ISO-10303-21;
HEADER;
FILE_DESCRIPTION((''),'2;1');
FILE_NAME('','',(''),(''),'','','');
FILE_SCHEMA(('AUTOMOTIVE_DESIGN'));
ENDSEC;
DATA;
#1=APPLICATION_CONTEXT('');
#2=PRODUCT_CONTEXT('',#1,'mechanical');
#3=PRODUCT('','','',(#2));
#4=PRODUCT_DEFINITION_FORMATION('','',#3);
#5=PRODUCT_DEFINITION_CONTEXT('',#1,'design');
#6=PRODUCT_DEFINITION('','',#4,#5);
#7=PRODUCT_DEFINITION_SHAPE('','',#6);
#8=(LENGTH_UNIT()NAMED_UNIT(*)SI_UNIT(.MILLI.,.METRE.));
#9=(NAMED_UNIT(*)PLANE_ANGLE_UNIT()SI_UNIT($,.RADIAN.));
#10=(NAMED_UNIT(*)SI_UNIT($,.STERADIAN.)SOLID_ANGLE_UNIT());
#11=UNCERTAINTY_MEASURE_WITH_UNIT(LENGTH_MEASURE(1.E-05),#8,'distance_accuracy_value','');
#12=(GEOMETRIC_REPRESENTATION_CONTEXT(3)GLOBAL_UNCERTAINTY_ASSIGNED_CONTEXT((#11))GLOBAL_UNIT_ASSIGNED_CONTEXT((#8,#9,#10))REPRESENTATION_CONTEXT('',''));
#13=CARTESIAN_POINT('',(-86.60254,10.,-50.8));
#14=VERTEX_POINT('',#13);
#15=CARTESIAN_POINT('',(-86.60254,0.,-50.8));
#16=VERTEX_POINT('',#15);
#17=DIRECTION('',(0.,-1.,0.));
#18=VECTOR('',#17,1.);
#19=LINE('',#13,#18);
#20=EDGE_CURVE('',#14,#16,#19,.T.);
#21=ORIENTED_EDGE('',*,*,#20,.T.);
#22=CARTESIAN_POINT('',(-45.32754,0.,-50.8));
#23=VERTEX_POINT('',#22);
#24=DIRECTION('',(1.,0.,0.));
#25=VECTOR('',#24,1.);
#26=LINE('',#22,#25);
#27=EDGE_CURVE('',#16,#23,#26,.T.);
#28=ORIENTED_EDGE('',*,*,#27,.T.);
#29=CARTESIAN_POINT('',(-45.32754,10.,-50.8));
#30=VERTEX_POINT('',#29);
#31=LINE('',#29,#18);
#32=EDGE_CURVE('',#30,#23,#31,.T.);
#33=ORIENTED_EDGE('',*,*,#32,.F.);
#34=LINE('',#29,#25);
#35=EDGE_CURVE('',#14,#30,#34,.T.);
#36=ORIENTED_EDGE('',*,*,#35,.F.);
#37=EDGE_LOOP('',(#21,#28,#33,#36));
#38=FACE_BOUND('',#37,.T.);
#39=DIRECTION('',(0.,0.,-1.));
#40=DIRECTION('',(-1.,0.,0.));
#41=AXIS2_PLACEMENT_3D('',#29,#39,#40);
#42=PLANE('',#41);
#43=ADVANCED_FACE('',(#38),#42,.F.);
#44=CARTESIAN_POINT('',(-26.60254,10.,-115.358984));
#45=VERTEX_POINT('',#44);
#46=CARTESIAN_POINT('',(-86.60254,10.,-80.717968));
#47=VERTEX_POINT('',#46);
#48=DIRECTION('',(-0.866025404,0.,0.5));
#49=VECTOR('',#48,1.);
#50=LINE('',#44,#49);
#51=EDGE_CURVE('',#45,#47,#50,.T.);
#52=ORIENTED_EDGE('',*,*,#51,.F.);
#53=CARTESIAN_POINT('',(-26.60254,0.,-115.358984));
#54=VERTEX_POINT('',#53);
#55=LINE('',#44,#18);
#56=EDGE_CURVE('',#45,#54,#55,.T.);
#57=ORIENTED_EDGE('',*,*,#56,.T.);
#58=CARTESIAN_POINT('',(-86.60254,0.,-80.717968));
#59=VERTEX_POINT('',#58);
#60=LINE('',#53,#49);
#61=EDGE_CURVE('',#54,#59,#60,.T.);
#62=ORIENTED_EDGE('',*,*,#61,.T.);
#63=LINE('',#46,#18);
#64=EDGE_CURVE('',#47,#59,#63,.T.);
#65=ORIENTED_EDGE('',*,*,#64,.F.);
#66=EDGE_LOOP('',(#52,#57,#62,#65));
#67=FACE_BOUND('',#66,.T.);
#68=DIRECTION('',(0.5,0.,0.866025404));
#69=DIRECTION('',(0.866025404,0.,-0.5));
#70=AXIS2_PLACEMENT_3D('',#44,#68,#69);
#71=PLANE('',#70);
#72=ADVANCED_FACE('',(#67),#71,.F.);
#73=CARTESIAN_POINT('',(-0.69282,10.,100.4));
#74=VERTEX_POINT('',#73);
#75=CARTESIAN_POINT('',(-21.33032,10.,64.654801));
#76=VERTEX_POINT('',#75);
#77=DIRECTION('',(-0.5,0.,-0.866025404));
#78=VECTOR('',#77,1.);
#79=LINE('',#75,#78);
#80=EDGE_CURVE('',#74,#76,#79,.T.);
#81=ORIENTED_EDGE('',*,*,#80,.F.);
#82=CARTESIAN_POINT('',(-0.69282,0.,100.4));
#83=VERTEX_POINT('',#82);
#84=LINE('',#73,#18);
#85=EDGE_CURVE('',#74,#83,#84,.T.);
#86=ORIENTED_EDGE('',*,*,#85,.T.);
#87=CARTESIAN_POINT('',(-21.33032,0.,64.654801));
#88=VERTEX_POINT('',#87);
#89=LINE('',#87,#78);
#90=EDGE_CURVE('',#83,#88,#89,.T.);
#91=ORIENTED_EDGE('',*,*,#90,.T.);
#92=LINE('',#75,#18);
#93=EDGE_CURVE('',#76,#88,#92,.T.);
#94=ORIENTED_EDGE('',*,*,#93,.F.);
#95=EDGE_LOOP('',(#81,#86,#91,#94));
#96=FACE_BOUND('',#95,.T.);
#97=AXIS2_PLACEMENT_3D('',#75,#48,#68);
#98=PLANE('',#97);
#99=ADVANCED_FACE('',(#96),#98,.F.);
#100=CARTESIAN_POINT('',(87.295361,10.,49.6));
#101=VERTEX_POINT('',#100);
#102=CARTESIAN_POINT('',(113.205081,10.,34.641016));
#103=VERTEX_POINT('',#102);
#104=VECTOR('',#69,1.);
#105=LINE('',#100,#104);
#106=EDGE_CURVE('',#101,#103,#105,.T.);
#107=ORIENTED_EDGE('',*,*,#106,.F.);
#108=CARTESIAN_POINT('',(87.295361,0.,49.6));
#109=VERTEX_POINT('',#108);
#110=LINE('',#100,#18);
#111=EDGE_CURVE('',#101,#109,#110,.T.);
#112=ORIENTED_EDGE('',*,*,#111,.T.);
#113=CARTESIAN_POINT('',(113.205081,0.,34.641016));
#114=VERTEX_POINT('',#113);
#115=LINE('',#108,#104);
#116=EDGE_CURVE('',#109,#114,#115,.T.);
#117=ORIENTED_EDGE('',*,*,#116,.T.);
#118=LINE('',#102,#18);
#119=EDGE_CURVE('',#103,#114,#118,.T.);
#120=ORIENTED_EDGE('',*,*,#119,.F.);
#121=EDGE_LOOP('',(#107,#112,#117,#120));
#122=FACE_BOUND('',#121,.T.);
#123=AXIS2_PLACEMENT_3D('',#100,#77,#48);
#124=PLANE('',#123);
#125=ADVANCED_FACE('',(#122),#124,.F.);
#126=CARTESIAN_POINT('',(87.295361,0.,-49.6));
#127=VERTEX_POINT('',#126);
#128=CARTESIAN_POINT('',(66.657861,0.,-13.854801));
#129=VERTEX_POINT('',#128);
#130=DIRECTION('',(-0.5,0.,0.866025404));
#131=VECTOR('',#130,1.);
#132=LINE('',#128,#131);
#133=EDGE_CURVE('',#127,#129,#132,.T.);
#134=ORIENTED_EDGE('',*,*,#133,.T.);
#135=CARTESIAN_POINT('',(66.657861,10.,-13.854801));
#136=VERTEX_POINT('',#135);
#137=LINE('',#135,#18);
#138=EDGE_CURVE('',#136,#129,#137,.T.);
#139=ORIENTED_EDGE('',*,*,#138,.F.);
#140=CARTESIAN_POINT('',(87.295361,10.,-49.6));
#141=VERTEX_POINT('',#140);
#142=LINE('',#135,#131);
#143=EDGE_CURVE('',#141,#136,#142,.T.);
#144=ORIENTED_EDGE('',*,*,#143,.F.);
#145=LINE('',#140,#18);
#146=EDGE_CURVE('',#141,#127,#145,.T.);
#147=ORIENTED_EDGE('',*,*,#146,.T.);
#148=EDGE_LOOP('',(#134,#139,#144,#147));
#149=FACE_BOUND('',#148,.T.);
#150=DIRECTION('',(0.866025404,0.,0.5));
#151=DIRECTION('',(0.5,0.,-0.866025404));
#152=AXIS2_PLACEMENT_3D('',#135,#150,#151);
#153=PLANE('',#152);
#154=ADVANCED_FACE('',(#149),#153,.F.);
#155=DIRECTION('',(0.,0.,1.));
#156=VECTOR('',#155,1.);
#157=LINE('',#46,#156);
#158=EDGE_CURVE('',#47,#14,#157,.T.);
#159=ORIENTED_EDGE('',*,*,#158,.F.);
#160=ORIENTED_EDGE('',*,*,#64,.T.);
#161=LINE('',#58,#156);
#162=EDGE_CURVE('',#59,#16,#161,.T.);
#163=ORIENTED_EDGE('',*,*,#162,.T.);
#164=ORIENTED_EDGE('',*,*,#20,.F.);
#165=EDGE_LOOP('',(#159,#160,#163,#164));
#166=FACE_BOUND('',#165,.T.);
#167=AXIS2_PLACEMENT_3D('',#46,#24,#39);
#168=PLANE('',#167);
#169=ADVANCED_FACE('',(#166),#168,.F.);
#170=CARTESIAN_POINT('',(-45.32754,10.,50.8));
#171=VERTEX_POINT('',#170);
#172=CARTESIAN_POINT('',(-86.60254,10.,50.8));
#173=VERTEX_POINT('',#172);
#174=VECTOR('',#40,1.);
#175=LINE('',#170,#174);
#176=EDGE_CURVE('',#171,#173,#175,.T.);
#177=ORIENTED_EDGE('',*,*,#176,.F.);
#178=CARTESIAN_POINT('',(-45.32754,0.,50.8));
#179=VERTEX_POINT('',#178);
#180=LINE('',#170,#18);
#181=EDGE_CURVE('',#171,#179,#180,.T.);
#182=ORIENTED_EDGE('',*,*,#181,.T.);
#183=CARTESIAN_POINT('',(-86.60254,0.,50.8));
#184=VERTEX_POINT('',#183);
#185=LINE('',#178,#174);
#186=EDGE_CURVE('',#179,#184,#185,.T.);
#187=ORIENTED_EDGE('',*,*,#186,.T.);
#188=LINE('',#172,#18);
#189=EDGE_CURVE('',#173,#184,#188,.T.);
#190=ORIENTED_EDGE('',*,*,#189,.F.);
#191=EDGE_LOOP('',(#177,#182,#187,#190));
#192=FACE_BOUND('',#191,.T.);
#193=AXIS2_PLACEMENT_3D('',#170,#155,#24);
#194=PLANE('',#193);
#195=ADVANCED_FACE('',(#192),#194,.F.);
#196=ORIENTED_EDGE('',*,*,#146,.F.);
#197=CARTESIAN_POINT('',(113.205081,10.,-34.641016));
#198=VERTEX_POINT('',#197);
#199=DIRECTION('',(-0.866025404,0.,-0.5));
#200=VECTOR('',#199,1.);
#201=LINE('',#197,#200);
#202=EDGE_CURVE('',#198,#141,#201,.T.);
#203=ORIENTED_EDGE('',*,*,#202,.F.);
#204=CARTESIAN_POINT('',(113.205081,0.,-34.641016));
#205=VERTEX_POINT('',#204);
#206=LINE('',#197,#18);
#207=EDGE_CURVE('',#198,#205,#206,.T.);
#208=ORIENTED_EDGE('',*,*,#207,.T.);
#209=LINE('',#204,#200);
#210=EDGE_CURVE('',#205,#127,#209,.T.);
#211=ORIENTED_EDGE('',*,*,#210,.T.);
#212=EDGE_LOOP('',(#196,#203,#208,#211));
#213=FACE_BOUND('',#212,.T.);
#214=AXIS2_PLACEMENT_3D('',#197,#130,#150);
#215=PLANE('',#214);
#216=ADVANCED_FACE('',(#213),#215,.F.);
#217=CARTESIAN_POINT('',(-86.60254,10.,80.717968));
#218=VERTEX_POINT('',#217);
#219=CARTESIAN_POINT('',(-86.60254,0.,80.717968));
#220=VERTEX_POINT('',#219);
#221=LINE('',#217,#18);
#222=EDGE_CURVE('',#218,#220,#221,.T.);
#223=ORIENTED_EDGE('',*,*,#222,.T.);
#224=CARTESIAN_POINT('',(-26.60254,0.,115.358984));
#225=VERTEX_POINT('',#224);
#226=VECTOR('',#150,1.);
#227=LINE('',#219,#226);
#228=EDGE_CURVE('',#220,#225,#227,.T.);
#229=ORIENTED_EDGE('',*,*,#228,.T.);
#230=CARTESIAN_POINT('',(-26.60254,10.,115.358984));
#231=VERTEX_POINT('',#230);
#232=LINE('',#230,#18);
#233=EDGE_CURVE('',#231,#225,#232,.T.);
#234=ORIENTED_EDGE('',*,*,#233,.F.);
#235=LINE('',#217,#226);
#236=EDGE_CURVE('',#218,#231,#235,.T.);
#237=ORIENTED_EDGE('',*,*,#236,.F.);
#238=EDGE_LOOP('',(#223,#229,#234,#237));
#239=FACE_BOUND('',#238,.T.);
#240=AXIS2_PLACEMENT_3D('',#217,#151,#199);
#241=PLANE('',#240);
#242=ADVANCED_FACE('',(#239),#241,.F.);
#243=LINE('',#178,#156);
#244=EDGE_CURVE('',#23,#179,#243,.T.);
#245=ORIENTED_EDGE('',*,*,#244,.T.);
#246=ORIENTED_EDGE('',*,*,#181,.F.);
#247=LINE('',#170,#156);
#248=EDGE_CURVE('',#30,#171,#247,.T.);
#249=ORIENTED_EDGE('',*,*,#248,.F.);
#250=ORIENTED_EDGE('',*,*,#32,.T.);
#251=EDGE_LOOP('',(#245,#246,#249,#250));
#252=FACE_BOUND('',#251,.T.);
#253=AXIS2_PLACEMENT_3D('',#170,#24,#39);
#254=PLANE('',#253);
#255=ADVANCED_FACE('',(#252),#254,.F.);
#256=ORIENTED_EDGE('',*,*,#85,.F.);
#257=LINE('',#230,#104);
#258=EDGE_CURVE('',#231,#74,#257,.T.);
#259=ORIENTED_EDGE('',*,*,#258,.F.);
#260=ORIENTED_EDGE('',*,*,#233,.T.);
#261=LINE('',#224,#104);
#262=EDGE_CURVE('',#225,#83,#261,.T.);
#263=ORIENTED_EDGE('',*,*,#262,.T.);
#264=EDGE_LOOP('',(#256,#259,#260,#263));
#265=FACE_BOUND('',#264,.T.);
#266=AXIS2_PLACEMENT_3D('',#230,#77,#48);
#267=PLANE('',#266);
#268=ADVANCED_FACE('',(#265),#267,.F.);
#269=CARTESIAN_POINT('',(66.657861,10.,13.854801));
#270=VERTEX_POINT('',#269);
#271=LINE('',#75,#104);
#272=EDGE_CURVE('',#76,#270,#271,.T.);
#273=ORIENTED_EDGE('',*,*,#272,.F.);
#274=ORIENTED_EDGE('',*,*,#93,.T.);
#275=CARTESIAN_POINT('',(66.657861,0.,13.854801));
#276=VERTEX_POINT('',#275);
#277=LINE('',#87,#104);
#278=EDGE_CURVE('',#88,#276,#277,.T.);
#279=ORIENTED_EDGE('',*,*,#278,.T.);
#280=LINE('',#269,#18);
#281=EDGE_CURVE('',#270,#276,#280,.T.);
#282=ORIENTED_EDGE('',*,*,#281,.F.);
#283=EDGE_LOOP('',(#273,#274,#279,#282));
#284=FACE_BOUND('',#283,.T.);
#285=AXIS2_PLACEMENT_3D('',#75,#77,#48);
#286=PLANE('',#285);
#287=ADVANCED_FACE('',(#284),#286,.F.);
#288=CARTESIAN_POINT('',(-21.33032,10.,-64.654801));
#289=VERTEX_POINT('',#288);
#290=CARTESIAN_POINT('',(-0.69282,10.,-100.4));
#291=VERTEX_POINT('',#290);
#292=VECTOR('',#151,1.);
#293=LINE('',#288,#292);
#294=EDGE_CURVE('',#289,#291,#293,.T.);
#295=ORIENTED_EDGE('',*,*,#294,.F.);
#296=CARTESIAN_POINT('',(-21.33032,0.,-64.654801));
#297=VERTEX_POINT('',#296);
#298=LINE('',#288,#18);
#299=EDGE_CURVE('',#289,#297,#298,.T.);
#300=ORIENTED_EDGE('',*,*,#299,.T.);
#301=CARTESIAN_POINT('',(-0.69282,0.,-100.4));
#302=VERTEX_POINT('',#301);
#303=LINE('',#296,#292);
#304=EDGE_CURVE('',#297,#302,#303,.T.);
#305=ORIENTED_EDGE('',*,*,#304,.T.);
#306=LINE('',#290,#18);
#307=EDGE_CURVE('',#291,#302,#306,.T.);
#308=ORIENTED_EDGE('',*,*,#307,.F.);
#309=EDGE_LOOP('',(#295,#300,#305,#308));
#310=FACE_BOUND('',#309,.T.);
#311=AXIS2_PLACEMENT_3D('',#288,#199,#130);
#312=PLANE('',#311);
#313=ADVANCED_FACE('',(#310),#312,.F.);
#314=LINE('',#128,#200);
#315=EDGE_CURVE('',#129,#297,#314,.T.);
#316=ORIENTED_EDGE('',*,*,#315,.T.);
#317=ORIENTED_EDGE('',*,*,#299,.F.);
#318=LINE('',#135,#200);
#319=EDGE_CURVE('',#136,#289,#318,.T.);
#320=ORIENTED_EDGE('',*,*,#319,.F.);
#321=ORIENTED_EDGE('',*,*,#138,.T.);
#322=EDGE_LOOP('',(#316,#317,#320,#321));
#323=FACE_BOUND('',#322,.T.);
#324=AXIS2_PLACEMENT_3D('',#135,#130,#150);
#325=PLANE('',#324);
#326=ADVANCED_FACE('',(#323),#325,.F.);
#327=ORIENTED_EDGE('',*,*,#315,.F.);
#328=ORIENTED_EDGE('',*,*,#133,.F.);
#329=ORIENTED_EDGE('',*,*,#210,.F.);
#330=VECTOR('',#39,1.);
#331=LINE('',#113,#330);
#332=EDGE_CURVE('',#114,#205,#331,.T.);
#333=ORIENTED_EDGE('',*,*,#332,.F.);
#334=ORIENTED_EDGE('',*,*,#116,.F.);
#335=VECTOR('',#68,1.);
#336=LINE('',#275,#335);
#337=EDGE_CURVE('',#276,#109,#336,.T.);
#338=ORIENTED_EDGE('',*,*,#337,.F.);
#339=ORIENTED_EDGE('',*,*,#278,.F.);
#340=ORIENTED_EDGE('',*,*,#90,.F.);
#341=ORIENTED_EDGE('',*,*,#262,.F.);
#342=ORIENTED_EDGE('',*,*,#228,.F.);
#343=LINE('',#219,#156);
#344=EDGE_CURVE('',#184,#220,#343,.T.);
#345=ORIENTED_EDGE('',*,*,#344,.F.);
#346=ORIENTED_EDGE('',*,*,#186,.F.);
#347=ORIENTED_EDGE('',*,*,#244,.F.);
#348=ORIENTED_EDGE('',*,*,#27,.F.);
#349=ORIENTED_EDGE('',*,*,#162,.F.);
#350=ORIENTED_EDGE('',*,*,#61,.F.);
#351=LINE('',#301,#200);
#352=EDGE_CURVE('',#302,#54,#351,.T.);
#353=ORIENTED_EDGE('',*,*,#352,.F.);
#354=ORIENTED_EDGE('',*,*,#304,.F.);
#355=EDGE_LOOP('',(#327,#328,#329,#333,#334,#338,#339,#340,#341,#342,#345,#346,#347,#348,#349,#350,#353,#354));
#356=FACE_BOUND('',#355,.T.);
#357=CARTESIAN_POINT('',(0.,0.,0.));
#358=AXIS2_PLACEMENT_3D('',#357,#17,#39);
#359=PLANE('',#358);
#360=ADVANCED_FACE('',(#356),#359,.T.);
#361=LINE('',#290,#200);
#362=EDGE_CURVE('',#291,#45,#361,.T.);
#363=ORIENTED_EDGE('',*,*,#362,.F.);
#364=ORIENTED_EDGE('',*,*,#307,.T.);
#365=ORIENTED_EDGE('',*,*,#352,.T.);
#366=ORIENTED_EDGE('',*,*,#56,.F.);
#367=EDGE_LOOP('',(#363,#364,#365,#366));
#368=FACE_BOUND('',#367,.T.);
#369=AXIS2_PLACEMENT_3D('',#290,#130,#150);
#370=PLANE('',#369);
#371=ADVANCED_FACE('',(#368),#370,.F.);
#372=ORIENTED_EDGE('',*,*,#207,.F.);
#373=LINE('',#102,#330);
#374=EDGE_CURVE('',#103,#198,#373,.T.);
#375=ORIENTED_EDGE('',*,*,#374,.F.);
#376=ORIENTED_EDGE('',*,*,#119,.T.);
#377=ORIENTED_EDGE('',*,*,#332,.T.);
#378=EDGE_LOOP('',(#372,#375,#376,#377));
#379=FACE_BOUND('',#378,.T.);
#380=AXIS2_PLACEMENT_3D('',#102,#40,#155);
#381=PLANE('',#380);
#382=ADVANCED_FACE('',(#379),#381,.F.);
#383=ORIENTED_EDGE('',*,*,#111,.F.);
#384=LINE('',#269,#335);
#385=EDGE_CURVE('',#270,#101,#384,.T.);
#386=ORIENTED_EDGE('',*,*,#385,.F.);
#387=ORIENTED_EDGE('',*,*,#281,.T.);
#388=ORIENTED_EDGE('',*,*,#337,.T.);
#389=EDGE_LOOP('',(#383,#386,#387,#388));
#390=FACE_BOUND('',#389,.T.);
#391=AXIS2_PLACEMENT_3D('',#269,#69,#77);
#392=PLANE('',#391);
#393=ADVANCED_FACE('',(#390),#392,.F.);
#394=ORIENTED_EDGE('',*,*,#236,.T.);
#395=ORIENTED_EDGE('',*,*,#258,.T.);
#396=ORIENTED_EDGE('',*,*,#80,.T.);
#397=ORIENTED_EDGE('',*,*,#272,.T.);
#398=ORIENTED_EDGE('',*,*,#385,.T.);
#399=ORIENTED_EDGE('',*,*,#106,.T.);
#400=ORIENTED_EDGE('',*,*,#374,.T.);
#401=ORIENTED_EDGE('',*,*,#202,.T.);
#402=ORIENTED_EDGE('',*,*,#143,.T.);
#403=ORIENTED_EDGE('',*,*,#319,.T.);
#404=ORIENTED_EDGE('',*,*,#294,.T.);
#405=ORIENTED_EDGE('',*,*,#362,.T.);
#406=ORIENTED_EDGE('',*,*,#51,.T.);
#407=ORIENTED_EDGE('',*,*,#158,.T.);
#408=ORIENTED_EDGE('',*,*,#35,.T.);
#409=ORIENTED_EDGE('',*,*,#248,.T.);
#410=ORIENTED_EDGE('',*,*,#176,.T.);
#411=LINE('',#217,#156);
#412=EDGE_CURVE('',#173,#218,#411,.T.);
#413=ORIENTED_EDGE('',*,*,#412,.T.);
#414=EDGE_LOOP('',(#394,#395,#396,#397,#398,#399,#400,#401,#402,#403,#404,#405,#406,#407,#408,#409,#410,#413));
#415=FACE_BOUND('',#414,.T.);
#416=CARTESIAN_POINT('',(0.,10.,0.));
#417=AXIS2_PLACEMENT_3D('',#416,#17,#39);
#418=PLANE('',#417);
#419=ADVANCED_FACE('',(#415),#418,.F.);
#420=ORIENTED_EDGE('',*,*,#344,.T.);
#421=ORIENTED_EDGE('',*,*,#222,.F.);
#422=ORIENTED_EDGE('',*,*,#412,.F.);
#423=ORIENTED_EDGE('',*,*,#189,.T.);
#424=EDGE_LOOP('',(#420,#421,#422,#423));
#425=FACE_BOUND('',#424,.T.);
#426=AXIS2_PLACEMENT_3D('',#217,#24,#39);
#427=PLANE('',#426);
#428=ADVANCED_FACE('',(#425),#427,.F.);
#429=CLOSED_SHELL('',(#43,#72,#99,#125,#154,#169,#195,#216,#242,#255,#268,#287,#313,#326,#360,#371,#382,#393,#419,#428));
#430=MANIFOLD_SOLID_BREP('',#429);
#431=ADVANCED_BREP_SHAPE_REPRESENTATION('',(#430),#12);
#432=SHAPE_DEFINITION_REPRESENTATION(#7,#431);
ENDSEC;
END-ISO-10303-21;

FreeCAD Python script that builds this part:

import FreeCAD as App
import Part
import Sketcher

V = App.Vector
Q = App.Units.Quantity

doc = App.newDocument("Part")
body = doc.addObject("PartDesign::Body", "Body")

sketch1 = body.newObject("Sketcher::SketchObject", "Sketch")
sketch1.AttachmentSupport = (doc.getObject("XZ_Plane"), [""])
sketch1.MapMode = "FlatFace"
sketch1.addGeometry(Part.LineSegment(V(-26.60254, -115.358984, 0), V(-86.60254, -80.717968, 0)), False)
sketch1.addGeometry(Part.LineSegment(V(-86.60254, -80.717968, 0), V(-86.60254, -50.8, 0)), False)
sketch1.addGeometry(Part.LineSegment(V(-86.60254, -50.8, 0), V(-45.32754, -50.8, 0)), False)
sketch1.addGeometry(Part.LineSegment(V(-45.32754, -50.8, 0), V(-45.32754, 50.8, 0)), False)
sketch1.addGeometry(Part.LineSegment(V(-45.32754, 50.8, 0), V(-86.60254, 50.8, 0)), False)
sketch1.addGeometry(Part.LineSegment(V(-86.60254, 50.8, 0), V(-86.60254, 80.717968, 0)), False)
sketch1.addGeometry(Part.LineSegment(V(-86.60254, 80.717968, 0), V(-26.60254, 115.358984, 0)), False)
sketch1.addGeometry(Part.LineSegment(V(-26.60254, 115.358984, 0), V(-0.69282, 100.4, 0)), False)
sketch1.addGeometry(Part.LineSegment(V(-0.69282, 100.4, 0), V(-21.33032, 64.654801, 0)), False)
sketch1.addGeometry(Part.LineSegment(V(-21.33032, 64.654801, 0), V(66.657861, 13.854801, 0)), False)
sketch1.addGeometry(Part.LineSegment(V(66.657861, 13.854801, 0), V(87.295361, 49.6, 0)), False)
sketch1.addGeometry(Part.LineSegment(V(87.295361, 49.6, 0), V(113.205081, 34.641016, 0)), False)
sketch1.addGeometry(Part.LineSegment(V(113.205081, 34.641016, 0), V(113.205081, -34.641016, 0)), False)
sketch1.addGeometry(Part.LineSegment(V(113.205081, -34.641016, 0), V(87.295361, -49.6, 0)), False)
sketch1.addGeometry(Part.LineSegment(V(87.295361, -49.6, 0), V(66.657861, -13.854801, 0)), False)
sketch1.addGeometry(Part.LineSegment(V(66.657861, -13.854801, 0), V(-21.33032, -64.654801, 0)), False)
sketch1.addGeometry(Part.LineSegment(V(-21.33032, -64.654801, 0), V(-0.69282, -100.4, 0)), False)
sketch1.addGeometry(Part.LineSegment(V(-0.69282, -100.4, 0), V(-26.60254, -115.358984, 0)), False)
sketch1.addConstraint(Sketcher.Constraint("Coincident", 0, 2, 1, 1))
sketch1.addConstraint(Sketcher.Constraint("Coincident", 1, 2, 2, 1))
sketch1.addConstraint(Sketcher.Constraint("Coincident", 2, 2, 3, 1))
sketch1.addConstraint(Sketcher.Constraint("Coincident", 3, 2, 4, 1))
sketch1.addConstraint(Sketcher.Constraint("Coincident", 4, 2, 5, 1))
sketch1.addConstraint(Sketcher.Constraint("Coincident", 5, 2, 6, 1))
sketch1.addConstraint(Sketcher.Constraint("Coincident", 6, 2, 7, 1))
sketch1.addConstraint(Sketcher.Constraint("Coincident", 7, 2, 8, 1))
sketch1.addConstraint(Sketcher.Constraint("Coincident", 8, 2, 9, 1))
sketch1.addConstraint(Sketcher.Constraint("Coincident", 9, 2, 10, 1))
sketch1.addConstraint(Sketcher.Constraint("Coincident", 10, 2, 11, 1))
sketch1.addConstraint(Sketcher.Constraint("Coincident", 11, 2, 12, 1))
sketch1.addConstraint(Sketcher.Constraint("Coincident", 12, 2, 13, 1))
sketch1.addConstraint(Sketcher.Constraint("Coincident", 13, 2, 14, 1))
sketch1.addConstraint(Sketcher.Constraint("Coincident", 14, 2, 15, 1))
sketch1.addConstraint(Sketcher.Constraint("Coincident", 15, 2, 16, 1))
sketch1.addConstraint(Sketcher.Constraint("Coincident", 16, 2, 17, 1))
sketch1.addConstraint(Sketcher.Constraint("Coincident", 17, 2, 0, 1))
sketch1.addConstraint(Sketcher.Constraint("Vertical", 1))
sketch1.addConstraint(Sketcher.Constraint("Horizontal", 2))
sketch1.addConstraint(Sketcher.Constraint("Vertical", 3))
sketch1.addConstraint(Sketcher.Constraint("Horizontal", 4))
sketch1.addConstraint(Sketcher.Constraint("Vertical", 5))
sketch1.addConstraint(Sketcher.Constraint("Vertical", 12))
sketch1.addConstraint(Sketcher.Constraint("Symmetric", 1, 2, 4, 2, -1))
sketch1.addConstraint(Sketcher.Constraint("Symmetric", 10, 2, 13, 2, -1))
sketch1.addConstraint(Sketcher.Constraint("Symmetric", 9, 2, 14, 2, -1))
sketch1.addConstraint(Sketcher.Constraint("Symmetric", 8, 2, 15, 2, -1))
sketch1.addConstraint(Sketcher.Constraint("Symmetric", 7, 2, 16, 2, -1))
sketch1.addConstraint(Sketcher.Constraint("Symmetric", 6, 2, 17, 2, -1))
sketch1.addConstraint(Sketcher.Constraint("Parallel", 0, 7))
sketch1.addConstraint(Sketcher.Constraint("Perpendicular", 7, 8))
sketch1.addConstraint(Sketcher.Constraint("Perpendicular", 8, 9))
sketch1.addConstraint(Sketcher.Constraint("Perpendicular", 9, 10))
sketch1.addConstraint(Sketcher.Constraint("Perpendicular", 10, 11))
sketch1.addConstraint(Sketcher.Constraint("Parallel", 6, 13))
sketch1.addConstraint(Sketcher.Constraint("Perpendicular", 13, 14))
sketch1.addConstraint(Sketcher.Constraint("Equal", 8, 10))
sketch1.addConstraint(Sketcher.Constraint("Equal", 7, 11))
sketch1.addConstraint(Sketcher.Constraint("DistanceY", 3, 1, 3, 2, Q("4 in")))
sketch1.addConstraint(Sketcher.Constraint("Distance", 9, Q("4 in")))
sketch1.addConstraint(Sketcher.Constraint("Angle", 0, Q("150 deg")))
sketch1.addConstraint(Sketcher.Constraint("DistanceX", 2, 1, 2, 2, Q("1.625 in")))
sketch1.addConstraint(Sketcher.Constraint("Distance", 8, Q("1.625 in")))
sketch1.addConstraint(Sketcher.Constraint("DistanceY", -1, 1, 7, 2, Q("100.4 mm")))
sketch1.addConstraint(Sketcher.Constraint("DistanceX", 3, 2, 6, 2, Q("18.725 mm")))
sketch1.addConstraint(Sketcher.Constraint("DistanceX", 3, 2, 9, 2, Q("111.985401 mm")))
sketch1.addConstraint(Sketcher.Constraint("DistanceX", 0, 2, -1, 1, Q("86.60254 mm")))
pad1 = body.newObject("PartDesign::Pad", "Pad")
pad1.Profile = sketch1
pad1.Length = 10
pad1.Reversed = True

doc.recompute()
